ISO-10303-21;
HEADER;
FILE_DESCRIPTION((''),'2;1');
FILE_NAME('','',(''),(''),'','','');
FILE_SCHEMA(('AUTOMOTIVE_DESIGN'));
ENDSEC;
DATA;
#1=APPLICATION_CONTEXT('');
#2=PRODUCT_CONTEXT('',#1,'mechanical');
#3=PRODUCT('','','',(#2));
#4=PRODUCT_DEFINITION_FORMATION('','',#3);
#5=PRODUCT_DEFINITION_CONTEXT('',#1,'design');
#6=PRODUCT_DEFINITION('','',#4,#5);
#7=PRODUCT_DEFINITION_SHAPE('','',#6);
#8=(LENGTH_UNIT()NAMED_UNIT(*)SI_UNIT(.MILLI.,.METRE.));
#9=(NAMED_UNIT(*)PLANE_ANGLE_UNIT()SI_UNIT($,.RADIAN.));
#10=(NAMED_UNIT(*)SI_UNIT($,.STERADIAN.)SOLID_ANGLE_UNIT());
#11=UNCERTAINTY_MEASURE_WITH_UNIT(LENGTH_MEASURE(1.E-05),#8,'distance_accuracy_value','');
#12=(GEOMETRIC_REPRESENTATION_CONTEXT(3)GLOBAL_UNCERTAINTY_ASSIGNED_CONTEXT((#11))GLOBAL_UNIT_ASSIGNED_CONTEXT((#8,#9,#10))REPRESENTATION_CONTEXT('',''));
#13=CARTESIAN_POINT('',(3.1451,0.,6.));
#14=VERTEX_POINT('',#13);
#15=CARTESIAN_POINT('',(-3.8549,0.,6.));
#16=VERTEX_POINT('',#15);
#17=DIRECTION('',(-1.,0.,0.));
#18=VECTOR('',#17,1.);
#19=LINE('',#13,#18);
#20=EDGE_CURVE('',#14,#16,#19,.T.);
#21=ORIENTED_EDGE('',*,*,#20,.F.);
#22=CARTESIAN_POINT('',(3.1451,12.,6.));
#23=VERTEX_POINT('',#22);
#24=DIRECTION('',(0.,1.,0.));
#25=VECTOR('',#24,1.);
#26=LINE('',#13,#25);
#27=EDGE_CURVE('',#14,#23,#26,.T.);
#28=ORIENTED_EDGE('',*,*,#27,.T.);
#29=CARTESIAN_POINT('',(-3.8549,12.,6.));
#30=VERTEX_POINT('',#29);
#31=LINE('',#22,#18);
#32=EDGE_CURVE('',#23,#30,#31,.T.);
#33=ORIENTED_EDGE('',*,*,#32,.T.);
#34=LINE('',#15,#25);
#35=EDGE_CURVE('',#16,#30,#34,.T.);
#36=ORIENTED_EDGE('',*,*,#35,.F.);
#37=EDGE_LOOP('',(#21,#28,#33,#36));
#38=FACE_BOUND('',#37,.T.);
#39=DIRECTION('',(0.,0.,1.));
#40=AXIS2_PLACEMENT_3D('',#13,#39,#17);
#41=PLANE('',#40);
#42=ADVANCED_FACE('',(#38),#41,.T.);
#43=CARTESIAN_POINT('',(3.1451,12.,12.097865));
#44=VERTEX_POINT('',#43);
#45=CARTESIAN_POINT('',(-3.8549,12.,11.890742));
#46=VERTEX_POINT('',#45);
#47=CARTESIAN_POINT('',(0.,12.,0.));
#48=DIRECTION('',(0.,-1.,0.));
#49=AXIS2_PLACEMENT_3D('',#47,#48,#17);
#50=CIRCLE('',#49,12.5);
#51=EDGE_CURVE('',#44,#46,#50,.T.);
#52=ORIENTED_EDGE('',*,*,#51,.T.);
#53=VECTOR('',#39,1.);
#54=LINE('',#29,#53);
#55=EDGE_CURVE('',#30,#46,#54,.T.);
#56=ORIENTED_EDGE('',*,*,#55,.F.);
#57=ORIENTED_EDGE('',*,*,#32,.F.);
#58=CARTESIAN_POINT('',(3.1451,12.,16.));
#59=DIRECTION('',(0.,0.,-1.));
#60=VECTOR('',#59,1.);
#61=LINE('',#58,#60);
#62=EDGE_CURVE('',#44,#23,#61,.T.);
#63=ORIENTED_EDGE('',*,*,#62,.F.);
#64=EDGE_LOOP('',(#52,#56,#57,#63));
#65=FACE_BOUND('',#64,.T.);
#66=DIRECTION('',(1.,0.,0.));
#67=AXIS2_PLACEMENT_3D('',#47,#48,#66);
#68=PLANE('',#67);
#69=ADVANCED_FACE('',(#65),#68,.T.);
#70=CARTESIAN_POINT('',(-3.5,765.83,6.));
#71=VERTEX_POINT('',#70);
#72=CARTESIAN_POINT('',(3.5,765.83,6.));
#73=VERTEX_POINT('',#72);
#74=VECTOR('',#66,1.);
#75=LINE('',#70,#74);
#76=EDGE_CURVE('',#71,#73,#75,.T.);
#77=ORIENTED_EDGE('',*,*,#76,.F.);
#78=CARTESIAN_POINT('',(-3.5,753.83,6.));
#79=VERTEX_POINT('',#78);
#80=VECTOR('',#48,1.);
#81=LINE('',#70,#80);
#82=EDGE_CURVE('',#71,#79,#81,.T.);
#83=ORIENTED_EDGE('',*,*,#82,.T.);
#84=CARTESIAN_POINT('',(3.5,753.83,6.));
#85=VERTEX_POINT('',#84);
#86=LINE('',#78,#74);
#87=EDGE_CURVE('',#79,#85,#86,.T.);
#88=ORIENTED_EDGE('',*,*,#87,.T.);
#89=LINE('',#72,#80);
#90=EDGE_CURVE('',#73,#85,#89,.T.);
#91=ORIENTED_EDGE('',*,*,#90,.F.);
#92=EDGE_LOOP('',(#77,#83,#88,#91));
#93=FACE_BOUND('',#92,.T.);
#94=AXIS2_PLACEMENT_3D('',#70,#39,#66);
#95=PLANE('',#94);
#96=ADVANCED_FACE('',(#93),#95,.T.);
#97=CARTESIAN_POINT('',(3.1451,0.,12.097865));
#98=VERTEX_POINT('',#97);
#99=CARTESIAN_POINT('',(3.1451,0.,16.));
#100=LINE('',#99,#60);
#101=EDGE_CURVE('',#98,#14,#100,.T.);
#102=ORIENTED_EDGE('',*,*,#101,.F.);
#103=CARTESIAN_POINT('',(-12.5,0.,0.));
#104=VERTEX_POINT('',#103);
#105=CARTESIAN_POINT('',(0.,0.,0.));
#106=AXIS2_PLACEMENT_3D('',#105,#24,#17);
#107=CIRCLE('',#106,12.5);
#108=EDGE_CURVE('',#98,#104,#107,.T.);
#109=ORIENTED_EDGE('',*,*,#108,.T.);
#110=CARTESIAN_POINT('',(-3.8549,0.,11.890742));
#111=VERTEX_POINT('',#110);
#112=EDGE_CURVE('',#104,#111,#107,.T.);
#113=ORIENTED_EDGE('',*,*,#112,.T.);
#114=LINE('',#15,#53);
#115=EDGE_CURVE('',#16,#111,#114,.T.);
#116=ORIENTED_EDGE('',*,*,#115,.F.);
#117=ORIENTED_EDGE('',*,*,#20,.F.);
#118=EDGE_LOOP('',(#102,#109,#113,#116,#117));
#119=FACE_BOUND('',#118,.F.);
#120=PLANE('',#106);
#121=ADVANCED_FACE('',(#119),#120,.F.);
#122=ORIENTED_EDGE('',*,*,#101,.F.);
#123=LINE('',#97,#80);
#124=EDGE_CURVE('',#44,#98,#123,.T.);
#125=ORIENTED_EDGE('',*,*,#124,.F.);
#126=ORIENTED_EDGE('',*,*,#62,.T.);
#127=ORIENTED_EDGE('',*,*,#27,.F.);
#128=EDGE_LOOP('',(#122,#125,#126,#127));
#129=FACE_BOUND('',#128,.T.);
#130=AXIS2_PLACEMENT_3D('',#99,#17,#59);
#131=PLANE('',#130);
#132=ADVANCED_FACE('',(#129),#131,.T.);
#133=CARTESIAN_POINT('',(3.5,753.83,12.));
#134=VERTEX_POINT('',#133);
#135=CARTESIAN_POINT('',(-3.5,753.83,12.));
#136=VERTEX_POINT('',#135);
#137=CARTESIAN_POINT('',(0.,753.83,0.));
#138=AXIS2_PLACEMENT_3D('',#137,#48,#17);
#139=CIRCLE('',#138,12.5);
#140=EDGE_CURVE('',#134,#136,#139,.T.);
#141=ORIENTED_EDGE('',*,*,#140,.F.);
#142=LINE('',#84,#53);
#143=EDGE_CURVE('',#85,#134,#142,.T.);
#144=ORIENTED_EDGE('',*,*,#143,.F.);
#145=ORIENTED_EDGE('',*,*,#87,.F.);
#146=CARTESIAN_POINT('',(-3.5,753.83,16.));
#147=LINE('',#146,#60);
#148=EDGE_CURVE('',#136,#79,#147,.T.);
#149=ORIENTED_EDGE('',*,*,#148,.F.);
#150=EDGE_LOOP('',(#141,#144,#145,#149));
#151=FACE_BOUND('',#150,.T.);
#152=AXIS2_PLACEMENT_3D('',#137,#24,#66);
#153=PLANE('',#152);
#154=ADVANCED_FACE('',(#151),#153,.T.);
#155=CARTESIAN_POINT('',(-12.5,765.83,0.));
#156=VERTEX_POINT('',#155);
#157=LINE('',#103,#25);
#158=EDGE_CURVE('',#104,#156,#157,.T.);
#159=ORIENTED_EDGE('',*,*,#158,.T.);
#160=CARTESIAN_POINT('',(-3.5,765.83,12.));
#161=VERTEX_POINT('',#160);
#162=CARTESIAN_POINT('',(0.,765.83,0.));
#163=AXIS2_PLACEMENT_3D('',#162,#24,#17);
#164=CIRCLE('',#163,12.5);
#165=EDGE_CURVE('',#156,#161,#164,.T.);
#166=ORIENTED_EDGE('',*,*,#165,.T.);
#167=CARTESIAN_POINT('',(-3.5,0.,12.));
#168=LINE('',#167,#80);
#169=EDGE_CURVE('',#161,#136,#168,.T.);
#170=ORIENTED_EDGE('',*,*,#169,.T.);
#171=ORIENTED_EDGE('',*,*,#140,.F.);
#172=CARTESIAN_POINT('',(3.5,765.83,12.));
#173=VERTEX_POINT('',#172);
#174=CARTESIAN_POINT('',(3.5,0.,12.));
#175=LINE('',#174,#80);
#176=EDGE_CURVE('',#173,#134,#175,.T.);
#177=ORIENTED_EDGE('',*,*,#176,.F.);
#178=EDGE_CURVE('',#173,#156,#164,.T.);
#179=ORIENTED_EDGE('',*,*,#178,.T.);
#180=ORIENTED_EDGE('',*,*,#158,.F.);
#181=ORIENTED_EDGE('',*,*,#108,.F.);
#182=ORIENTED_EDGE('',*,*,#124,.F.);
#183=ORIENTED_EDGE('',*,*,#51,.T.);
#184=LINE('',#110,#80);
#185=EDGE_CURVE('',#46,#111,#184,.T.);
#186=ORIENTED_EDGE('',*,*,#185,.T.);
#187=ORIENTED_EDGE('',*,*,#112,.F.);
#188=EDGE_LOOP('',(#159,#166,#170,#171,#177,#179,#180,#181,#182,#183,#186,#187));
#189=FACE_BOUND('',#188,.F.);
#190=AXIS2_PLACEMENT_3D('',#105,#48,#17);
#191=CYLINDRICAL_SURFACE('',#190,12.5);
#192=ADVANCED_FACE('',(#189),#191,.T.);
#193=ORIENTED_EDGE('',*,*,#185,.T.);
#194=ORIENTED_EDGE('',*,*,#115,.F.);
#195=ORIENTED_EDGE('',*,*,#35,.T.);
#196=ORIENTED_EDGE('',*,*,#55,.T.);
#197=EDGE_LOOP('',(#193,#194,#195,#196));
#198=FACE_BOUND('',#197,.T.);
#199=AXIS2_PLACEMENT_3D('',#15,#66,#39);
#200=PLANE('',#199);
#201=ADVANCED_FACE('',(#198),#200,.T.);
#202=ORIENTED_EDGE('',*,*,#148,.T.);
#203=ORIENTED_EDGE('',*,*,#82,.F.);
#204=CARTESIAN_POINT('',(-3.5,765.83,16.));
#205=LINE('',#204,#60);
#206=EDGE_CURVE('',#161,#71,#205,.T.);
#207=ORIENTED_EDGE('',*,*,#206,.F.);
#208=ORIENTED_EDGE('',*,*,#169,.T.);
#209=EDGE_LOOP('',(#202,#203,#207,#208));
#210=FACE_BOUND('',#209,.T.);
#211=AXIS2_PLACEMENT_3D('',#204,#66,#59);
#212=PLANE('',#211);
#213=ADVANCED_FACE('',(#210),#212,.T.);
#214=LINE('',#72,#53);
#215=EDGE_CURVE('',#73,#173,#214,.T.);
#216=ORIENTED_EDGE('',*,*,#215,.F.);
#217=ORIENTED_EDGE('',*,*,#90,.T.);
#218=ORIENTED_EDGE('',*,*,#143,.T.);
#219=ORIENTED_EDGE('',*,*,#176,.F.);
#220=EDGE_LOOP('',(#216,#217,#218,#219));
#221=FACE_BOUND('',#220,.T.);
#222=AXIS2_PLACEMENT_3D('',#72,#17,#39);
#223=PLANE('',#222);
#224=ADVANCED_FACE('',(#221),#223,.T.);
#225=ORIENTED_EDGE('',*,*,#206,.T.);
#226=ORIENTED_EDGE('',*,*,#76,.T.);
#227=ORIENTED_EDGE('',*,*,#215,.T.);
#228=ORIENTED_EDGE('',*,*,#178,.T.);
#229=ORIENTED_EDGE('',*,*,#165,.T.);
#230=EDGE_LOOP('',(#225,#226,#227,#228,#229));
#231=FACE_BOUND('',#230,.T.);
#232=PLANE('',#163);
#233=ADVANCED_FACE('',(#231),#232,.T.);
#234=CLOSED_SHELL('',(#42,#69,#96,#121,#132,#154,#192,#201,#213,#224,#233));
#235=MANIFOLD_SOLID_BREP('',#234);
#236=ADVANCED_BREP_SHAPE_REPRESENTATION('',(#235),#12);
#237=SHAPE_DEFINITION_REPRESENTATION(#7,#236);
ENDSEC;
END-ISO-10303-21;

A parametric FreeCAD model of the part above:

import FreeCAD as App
import Part
import Sketcher
from FreeCAD import Vector


def add_polygon(sketch, points):
    """Adds a closed chain of lines whose ends are joined by coincident constraints."""
    first, n = sketch.GeometryCount, len(points)
    for a, b in zip(points, points[1:] + points[:1]):
        sketch.addGeometry(Part.LineSegment(App.Vector(*a, 0), App.Vector(*b, 0)), False)
    for i in range(n):
        sketch.addConstraint(Sketcher.Constraint("Coincident", first + i, 2, first + (i + 1) % n, 1))

doc = App.newDocument("Part")
body = doc.addObject("PartDesign::Body", "Body")

# Sketch on XZ plane
sketch1 = doc.addObject("Sketcher::SketchObject", "Sketch")
body.addObject(sketch1)
sketch1.AttachmentSupport = (doc.XZ_Plane, [""])
sketch1.MapMode = "FlatFace"
sketch1.addGeometry(Part.Circle(Vector(0, 0, 0), Vector(0, 0, 1), 12), False)
sketch1.addConstraint(Sketcher.Constraint("Coincident", 0, 3, -1, 1))
sketch1.addConstraint(Sketcher.Constraint("Diameter", 0, 25.0))
pad1 = doc.addObject("PartDesign::Pad", "Pad")
body.addObject(pad1)
pad1.Profile = sketch1
pad1.Length = 765.83
pad1.Reversed = True

# Sketch on XZ plane
sketch2 = doc.addObject("Sketcher::SketchObject", "Sketch001")
body.addObject(sketch2)
sketch2.AttachmentSupport = (doc.XZ_Plane, [""])
sketch2.MapMode = "FlatFace"
sketch2.AttachmentOffset = App.Placement(Vector(0, 0, -765.83), App.Rotation())
add_polygon(sketch2, [(-4, 16), (4, 16), (4, 6), (-4, 6)])  # lines 0-3
sketch2.addConstraint(Sketcher.Constraint("Horizontal", 0))
sketch2.addConstraint(Sketcher.Constraint("Vertical", 1))
sketch2.addConstraint(Sketcher.Constraint("Horizontal", 2))
sketch2.addConstraint(Sketcher.Constraint("Vertical", 3))
sketch2.addConstraint(Sketcher.Constraint("DistanceX", 0, 1, 0, 2, 7.0))
sketch2.addConstraint(Sketcher.Constraint("DistanceY", 1, 2, 1, 1, 10.0))
sketch2.addConstraint(Sketcher.Constraint("DistanceY", -1, 1, 1, 2, 6.0))
sketch2.addConstraint(Sketcher.Constraint("DistanceX", -1, 1, 0, 2, 3.5))
pocket1 = doc.addObject("PartDesign::Pocket", "Pocket")
body.addObject(pocket1)
pocket1.Profile = sketch2
pocket1.Length = 12
pocket1.Reversed = True

# Sketch on XZ plane
sketch3 = doc.addObject("Sketcher::SketchObject", "Sketch002")
body.addObject(sketch3)
sketch3.AttachmentSupport = (doc.XZ_Plane, [""])
sketch3.MapMode = "FlatFace"
add_polygon(sketch3, [(3, 16), (-4, 16), (-4, 6), (3, 6)])  # lines 0-3
sketch3.addConstraint(Sketcher.Constraint("Horizontal", 0))
sketch3.addConstraint(Sketcher.Constraint("Vertical", 1))
sketch3.addConstraint(Sketcher.Constraint("Horizontal", 2))
sketch3.addConstraint(Sketcher.Constraint("Vertical", 3))
sketch3.addConstraint(Sketcher.Constraint("DistanceX", 0, 2, 0, 1, 7.0))
sketch3.addConstraint(Sketcher.Constraint("DistanceY", 1, 2, 1, 1, 10.0))
sketch3.addConstraint(Sketcher.Constraint("DistanceY", -1, 1, 1, 2, 6.0))
sketch3.addConstraint(Sketcher.Constraint("DistanceX", 0, 2, -1, 1, 3.855))
pocket2 = doc.addObject("PartDesign::Pocket", "Pocket001")
body.addObject(pocket2)
pocket2.Profile = sketch3
pocket2.Length = 12

doc.recompute()
